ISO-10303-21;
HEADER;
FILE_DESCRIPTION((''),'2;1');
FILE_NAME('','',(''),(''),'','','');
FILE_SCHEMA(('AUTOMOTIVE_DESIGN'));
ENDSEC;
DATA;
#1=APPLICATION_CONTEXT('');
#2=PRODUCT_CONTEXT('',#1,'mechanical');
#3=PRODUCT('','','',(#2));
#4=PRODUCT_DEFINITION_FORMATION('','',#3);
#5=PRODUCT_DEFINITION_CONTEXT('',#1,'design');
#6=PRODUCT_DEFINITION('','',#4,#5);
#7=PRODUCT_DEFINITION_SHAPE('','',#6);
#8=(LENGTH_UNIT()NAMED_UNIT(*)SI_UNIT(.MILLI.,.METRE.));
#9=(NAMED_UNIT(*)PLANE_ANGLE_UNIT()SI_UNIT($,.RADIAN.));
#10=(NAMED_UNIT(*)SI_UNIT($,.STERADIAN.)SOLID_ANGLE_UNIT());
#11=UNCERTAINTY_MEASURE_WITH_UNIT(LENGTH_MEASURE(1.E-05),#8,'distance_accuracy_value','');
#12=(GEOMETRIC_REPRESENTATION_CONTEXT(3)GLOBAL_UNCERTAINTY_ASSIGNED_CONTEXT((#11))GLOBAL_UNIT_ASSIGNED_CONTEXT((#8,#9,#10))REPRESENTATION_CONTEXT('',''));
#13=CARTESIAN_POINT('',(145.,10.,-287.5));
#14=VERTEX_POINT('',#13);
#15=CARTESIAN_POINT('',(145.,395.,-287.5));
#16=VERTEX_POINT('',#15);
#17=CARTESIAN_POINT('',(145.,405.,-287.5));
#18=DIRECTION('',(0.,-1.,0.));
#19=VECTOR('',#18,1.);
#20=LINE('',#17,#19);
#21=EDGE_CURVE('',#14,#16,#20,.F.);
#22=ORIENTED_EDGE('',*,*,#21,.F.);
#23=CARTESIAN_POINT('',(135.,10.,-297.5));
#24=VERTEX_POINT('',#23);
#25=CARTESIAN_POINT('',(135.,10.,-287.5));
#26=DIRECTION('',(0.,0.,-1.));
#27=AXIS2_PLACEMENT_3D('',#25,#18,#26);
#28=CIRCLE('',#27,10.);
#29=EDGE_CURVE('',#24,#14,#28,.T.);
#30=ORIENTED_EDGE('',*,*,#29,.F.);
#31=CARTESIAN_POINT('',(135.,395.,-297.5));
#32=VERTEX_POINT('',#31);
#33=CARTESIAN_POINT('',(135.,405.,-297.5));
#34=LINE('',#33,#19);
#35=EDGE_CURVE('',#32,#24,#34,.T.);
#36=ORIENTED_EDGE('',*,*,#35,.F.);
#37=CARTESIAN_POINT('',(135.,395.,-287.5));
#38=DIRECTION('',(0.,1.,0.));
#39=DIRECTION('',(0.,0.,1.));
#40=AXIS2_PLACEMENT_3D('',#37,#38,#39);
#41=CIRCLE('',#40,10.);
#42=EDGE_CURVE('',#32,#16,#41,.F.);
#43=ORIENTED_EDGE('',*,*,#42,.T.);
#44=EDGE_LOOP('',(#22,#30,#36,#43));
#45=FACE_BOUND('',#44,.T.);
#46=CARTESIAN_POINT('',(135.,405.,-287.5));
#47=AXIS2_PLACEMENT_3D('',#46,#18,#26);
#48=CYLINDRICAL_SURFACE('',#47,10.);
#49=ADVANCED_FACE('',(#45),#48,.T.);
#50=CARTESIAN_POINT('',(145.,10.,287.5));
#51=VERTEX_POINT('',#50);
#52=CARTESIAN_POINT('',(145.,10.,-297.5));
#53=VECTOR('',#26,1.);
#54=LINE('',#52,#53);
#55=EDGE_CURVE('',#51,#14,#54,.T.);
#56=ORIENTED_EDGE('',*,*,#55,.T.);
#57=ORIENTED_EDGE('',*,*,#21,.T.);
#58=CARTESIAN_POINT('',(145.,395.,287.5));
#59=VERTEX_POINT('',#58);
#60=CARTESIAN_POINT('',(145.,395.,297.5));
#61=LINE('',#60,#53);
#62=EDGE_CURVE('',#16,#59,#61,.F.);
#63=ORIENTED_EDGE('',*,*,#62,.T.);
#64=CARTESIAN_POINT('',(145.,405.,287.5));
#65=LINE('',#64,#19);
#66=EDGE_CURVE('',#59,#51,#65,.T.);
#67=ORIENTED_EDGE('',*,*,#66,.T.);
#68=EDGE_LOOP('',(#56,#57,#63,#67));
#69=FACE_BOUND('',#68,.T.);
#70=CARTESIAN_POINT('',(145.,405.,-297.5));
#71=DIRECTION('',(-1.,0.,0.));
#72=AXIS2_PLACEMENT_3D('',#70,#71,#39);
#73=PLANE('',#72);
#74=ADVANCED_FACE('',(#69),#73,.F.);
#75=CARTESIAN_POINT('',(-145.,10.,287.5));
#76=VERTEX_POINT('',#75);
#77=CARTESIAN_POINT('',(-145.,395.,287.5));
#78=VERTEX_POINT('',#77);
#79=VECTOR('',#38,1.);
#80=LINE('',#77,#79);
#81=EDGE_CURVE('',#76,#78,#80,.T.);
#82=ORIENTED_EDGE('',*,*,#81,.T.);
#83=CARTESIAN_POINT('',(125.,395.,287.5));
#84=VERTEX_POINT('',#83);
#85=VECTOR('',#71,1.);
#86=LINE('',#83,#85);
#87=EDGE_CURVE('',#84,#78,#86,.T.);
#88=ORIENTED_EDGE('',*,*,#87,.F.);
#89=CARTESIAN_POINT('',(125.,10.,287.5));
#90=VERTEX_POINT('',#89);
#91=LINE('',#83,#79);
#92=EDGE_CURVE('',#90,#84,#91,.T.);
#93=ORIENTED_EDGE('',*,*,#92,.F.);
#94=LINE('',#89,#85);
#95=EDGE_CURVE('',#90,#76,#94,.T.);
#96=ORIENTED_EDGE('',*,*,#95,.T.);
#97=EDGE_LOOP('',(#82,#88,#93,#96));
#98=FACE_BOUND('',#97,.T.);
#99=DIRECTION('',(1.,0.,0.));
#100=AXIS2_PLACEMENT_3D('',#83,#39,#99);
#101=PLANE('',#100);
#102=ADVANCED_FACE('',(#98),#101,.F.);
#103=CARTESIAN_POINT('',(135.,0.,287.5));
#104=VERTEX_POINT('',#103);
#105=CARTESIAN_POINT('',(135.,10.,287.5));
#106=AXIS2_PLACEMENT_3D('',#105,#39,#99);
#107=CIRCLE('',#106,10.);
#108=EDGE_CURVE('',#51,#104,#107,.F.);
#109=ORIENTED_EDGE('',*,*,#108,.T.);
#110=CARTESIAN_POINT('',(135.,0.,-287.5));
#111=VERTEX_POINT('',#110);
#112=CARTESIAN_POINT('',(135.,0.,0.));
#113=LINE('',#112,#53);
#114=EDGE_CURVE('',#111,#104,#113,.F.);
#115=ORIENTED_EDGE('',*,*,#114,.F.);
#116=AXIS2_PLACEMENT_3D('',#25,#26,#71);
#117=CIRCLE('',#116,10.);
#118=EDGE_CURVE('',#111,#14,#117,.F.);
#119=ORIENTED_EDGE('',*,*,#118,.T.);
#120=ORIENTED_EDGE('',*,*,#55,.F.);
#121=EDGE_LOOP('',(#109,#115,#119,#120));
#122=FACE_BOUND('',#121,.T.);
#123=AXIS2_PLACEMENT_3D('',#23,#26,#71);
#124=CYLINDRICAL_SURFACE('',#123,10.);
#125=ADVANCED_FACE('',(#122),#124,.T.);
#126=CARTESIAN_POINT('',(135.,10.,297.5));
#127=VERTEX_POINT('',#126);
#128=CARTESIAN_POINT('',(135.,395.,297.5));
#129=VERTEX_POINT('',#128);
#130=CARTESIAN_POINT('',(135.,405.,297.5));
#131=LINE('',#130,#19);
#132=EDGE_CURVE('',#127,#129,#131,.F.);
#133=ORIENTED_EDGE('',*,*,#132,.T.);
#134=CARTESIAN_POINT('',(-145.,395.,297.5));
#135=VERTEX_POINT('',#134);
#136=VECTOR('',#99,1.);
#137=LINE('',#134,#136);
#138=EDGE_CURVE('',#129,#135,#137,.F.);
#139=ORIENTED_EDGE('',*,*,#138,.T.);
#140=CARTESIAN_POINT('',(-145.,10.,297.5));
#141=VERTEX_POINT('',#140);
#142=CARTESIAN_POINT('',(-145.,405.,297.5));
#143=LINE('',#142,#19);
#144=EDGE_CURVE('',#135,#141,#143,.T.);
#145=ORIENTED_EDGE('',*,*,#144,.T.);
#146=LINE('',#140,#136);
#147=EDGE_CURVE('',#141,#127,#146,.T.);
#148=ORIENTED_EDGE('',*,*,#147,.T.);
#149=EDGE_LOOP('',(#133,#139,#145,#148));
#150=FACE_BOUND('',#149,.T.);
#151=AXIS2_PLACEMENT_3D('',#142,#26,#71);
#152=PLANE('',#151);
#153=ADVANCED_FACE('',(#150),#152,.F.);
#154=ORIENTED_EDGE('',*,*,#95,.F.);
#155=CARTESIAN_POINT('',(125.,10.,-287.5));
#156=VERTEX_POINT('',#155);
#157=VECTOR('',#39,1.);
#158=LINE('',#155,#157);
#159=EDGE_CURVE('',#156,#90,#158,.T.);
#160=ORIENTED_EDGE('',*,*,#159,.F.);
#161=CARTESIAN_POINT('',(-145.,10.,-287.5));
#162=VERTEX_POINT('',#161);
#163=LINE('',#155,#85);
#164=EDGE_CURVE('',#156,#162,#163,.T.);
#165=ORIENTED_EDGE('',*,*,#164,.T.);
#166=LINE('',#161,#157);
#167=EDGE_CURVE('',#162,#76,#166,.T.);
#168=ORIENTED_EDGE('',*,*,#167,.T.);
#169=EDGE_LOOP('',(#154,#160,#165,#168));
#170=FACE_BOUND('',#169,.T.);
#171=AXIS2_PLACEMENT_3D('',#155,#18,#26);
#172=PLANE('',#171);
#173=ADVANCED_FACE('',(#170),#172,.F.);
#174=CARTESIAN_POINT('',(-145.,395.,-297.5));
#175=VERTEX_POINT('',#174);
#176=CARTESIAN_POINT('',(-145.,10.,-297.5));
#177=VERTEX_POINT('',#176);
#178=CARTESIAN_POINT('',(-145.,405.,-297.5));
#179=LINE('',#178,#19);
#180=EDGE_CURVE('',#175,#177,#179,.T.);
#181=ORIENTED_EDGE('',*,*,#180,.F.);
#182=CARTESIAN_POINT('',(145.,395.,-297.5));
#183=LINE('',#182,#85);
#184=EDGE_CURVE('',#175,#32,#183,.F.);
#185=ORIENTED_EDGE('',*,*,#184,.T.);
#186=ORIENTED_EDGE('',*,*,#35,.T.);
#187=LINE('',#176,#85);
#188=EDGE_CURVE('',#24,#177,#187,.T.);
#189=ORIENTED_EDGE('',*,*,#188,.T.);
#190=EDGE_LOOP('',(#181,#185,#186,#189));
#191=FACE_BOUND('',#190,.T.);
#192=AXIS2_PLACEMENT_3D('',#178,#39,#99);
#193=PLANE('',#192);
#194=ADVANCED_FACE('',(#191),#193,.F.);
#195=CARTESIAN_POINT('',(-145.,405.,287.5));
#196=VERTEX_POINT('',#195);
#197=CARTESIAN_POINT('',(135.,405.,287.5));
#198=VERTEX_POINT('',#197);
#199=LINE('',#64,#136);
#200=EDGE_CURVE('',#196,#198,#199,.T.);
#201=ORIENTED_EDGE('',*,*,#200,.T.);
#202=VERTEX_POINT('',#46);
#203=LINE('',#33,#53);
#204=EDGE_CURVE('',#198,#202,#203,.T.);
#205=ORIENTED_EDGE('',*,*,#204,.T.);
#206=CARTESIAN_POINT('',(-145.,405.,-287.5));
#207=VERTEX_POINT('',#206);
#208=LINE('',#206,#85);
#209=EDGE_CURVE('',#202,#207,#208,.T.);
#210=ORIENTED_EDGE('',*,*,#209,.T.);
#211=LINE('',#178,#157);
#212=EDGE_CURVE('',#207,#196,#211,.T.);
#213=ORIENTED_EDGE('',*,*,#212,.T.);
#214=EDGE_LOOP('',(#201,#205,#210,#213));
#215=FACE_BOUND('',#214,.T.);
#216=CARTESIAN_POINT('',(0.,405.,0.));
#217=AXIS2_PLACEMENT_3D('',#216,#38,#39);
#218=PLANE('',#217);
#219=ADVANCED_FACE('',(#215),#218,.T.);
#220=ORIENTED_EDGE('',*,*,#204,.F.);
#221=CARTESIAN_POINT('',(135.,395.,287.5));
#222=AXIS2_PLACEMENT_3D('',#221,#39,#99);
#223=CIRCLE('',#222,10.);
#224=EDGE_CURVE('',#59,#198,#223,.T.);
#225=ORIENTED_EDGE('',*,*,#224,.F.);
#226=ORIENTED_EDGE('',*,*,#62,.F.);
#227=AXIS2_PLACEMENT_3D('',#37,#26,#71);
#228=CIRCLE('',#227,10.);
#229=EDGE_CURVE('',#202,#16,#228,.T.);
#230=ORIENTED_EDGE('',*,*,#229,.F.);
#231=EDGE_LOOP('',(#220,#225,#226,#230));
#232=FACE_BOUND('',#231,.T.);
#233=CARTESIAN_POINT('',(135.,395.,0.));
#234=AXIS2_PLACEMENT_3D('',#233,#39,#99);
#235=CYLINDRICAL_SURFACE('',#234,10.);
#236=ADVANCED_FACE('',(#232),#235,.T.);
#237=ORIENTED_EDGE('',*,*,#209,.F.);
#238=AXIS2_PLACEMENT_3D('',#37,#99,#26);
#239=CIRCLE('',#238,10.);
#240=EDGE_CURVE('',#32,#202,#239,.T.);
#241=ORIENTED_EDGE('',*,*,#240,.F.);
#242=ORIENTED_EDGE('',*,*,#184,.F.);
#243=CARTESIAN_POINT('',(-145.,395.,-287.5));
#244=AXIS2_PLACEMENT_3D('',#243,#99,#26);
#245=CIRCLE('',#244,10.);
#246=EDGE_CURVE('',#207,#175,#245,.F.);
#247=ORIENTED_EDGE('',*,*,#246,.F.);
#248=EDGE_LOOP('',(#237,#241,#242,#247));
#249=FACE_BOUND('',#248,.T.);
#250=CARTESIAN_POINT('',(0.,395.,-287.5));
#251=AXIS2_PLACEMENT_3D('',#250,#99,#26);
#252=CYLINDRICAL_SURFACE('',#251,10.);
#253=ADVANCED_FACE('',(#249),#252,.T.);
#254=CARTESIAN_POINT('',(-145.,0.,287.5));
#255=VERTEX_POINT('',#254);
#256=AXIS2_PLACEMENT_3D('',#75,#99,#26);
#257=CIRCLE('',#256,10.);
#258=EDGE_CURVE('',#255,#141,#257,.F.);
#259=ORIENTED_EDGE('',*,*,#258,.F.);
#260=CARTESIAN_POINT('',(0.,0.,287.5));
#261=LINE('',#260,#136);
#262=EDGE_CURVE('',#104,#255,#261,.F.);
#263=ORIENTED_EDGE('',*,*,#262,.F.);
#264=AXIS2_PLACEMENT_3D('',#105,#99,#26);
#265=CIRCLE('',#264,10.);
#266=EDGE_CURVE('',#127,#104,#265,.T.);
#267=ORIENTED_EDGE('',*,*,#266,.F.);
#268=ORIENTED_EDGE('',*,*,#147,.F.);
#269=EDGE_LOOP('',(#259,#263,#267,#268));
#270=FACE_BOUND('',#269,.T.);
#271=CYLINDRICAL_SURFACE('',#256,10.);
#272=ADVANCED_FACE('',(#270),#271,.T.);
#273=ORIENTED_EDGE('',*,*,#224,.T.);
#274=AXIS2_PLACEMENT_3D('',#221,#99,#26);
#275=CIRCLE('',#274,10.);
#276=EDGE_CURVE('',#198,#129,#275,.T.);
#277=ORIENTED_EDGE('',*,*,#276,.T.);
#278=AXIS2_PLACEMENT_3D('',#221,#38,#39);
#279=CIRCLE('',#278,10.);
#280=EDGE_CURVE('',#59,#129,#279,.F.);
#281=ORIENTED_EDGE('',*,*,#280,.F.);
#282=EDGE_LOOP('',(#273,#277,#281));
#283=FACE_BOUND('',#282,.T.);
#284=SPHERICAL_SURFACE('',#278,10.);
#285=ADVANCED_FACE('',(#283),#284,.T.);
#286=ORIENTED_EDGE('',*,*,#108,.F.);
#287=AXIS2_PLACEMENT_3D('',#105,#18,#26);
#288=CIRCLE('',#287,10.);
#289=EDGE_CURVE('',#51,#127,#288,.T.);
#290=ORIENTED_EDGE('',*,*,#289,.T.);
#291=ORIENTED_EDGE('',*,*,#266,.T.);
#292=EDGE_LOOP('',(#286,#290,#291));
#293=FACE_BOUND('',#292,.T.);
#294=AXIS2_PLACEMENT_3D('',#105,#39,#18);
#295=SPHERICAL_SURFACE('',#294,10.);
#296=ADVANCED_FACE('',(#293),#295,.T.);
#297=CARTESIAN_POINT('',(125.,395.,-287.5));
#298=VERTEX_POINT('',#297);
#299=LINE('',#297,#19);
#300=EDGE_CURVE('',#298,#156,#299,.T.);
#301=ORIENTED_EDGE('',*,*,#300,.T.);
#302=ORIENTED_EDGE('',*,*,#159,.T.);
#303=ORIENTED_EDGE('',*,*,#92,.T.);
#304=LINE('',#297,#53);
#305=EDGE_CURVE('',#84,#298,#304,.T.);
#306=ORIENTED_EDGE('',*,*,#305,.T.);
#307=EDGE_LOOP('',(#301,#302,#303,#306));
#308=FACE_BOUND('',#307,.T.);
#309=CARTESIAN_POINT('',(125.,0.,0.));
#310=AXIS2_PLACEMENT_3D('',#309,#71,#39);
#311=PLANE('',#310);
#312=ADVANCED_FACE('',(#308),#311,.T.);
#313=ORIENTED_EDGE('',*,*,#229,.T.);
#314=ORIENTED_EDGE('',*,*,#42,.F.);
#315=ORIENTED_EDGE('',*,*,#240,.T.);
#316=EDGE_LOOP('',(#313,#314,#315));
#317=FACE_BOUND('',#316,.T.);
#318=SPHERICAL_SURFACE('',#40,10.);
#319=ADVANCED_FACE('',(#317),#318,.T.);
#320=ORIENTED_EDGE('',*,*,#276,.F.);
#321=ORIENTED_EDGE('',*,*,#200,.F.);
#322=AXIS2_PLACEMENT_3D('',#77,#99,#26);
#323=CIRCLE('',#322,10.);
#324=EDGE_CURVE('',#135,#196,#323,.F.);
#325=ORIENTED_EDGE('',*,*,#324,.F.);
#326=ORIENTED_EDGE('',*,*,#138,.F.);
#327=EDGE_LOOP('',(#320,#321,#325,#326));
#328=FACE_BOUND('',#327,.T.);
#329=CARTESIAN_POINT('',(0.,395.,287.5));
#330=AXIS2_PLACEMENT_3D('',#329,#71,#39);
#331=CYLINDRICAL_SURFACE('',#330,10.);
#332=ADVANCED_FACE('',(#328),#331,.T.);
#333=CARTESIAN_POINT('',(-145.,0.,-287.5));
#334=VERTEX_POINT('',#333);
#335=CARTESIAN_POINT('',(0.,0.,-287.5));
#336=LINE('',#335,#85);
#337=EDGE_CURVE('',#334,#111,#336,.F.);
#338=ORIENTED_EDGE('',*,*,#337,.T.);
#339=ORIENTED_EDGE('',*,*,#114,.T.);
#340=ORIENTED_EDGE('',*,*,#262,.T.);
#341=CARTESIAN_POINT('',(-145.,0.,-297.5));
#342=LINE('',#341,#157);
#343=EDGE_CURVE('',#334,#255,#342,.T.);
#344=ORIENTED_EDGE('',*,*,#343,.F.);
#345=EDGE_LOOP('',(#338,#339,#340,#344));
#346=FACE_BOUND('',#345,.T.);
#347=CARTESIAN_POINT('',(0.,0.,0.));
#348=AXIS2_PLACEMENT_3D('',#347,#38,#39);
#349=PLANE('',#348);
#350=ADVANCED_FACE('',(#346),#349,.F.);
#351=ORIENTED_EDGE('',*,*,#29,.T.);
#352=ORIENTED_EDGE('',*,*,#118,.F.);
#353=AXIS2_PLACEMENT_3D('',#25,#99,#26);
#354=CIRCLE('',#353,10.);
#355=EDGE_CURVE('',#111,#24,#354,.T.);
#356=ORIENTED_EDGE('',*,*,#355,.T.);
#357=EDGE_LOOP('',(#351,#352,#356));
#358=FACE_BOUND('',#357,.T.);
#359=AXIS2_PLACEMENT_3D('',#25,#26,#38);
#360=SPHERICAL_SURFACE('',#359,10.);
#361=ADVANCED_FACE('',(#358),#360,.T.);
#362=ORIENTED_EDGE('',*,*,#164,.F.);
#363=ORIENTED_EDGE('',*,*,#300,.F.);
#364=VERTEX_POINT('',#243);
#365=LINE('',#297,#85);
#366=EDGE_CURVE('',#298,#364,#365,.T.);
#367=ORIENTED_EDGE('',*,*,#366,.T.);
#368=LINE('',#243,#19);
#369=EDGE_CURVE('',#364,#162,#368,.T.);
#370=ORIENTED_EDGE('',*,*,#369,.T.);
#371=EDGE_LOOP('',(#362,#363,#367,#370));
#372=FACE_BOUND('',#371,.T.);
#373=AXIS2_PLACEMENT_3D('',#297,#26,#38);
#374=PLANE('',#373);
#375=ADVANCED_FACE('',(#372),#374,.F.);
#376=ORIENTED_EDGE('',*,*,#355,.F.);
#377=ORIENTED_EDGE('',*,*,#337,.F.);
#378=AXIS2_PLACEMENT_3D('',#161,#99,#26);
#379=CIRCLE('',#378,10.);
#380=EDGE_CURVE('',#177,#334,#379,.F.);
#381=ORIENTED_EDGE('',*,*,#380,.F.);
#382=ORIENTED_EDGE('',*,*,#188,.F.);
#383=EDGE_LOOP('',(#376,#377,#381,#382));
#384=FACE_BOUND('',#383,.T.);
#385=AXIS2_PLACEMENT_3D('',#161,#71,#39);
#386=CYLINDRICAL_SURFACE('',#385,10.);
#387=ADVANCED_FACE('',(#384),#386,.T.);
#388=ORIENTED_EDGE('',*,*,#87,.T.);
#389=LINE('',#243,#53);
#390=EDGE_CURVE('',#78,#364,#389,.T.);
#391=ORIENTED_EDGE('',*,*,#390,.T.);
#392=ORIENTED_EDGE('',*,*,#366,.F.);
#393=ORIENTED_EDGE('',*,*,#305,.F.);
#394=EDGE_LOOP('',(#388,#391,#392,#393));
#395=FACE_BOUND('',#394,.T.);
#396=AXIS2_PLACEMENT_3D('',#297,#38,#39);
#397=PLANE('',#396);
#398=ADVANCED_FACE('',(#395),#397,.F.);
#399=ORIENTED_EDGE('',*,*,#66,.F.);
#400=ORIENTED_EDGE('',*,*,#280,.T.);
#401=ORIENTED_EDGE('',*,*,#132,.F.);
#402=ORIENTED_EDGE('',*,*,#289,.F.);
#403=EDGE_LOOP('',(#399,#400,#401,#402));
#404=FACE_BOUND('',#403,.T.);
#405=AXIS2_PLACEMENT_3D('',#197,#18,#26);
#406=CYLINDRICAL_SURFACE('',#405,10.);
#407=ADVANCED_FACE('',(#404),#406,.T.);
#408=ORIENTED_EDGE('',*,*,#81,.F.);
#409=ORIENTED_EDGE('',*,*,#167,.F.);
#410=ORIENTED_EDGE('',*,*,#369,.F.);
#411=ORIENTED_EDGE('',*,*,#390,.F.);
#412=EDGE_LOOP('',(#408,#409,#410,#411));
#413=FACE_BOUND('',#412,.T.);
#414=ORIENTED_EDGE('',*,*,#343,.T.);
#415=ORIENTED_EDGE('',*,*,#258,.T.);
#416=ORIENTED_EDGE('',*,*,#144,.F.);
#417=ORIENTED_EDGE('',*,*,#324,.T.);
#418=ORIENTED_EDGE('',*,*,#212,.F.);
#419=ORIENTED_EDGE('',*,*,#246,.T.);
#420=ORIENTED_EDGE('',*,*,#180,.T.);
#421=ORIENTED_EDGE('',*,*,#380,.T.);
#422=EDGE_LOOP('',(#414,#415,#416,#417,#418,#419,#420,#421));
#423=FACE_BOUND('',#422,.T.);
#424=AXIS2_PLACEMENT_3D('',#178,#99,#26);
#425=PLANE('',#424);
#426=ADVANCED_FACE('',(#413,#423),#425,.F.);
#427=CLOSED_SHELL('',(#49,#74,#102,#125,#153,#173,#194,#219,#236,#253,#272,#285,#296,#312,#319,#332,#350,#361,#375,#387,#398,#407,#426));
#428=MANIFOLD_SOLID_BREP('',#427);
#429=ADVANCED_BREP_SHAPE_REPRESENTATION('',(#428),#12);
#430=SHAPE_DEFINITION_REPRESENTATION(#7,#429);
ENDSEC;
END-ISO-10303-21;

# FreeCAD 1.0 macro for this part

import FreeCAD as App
import Part
import Sketcher

V = App.Vector
Q = App.Units.Quantity


def edges_at(feature, points):
    """Names of the edges that pass closest to the given points."""
    edges = feature.Shape.Edges
    near = lambda p: min(range(len(edges)), key=lambda i: edges[i].distToShape(Part.Vertex(*p))[0])
    return sorted({f"Edge{near(p) + 1}" for p in points})


def add_polygon(sketch, points):
    """Adds a closed chain of lines whose ends are joined by coincident constraints."""
    first, n = sketch.GeometryCount, len(points)
    for a, b in zip(points, points[1:] + points[:1]):
        sketch.addGeometry(Part.LineSegment(App.Vector(*a, 0), App.Vector(*b, 0)), False)
    for i in range(n):
        sketch.addConstraint(Sketcher.Constraint("Coincident", first + i, 2, first + (i + 1) % n, 1))

doc = App.newDocument("Part")
body = doc.addObject("PartDesign::Body", "Body")

# Sketch on XZ plane
sketch1 = body.newObject("Sketcher::SketchObject", "Sketch")
sketch1.AttachmentSupport = (doc.getObject("XZ_Plane"), [""])
sketch1.MapMode = "FlatFace"
add_polygon(sketch1, [(-145, -298), (-145, 298), (145, 298), (145, -298)])  # lines 0-3
sketch1.addConstraint([
    Sketcher.Constraint("Vertical", 0),
    Sketcher.Constraint("Horizontal", 1),
    Sketcher.Constraint("Vertical", 2),
    Sketcher.Constraint("Horizontal", 3),
    Sketcher.Constraint("Symmetric", 0, 2, 2, 2, -1, 1),
    Sketcher.Constraint("DistanceX", 1, 1, 1, 2, Q("290 mm")),
    Sketcher.Constraint("DistanceY", 0, 1, 0, 2, Q("595 mm")),
])
pad1 = body.newObject("PartDesign::Pad", "Pad")
pad1.Profile = sketch1
pad1.Length = 405
pad1.Reversed = True
doc.recompute()

fillet = body.newObject("PartDesign::Fillet", "Fillet")
fillet.Base = (pad1, edges_at(pad1, [
    (0, 405, 297.5),
    (145, 405, 0),
    (0, 0, 297.5),
    (0, 0, -297.5),
    (145, 0, 0),
    (145, 202.5, 297.5),
    (145, 202.5, -297.5),
    (0, 405, -297.5),
]))
fillet.Radius = 10

# Sketch on YZ plane
sketch2 = body.newObject("Sketcher::SketchObject", "Sketch001")
sketch2.AttachmentSupport = (doc.getObject("YZ_Plane"), [""])
sketch2.MapMode = "FlatFace"
sketch2.AttachmentOffset = App.Placement(V(0, 0, -145), App.Rotation())
add_polygon(sketch2, [(395, -288), (10, -288), (10, 288), (395, 288)])  # lines 0-3
sketch2.addConstraint([
    Sketcher.Constraint("Horizontal", 0),
    Sketcher.Constraint("Vertical", 1),
    Sketcher.Constraint("Horizontal", 2),
    Sketcher.Constraint("Vertical", 3),
    Sketcher.Constraint("DistanceX", 0, 2, 0, 1, Q("385 mm")),
    Sketcher.Constraint("DistanceY", 1, 1, 1, 2, Q("575 mm")),
    Sketcher.Constraint("DistanceX", -1, 1, 0, 2, Q("10 mm")),
    Sketcher.Constraint("DistanceY", 0, 2, -1, 1, Q("287.5 mm")),
])
pocket1 = body.newObject("PartDesign::Pocket", "Pocket")
pocket1.Profile = sketch2
pocket1.Length = 270
pocket1.Reversed = True

doc.recompute()
